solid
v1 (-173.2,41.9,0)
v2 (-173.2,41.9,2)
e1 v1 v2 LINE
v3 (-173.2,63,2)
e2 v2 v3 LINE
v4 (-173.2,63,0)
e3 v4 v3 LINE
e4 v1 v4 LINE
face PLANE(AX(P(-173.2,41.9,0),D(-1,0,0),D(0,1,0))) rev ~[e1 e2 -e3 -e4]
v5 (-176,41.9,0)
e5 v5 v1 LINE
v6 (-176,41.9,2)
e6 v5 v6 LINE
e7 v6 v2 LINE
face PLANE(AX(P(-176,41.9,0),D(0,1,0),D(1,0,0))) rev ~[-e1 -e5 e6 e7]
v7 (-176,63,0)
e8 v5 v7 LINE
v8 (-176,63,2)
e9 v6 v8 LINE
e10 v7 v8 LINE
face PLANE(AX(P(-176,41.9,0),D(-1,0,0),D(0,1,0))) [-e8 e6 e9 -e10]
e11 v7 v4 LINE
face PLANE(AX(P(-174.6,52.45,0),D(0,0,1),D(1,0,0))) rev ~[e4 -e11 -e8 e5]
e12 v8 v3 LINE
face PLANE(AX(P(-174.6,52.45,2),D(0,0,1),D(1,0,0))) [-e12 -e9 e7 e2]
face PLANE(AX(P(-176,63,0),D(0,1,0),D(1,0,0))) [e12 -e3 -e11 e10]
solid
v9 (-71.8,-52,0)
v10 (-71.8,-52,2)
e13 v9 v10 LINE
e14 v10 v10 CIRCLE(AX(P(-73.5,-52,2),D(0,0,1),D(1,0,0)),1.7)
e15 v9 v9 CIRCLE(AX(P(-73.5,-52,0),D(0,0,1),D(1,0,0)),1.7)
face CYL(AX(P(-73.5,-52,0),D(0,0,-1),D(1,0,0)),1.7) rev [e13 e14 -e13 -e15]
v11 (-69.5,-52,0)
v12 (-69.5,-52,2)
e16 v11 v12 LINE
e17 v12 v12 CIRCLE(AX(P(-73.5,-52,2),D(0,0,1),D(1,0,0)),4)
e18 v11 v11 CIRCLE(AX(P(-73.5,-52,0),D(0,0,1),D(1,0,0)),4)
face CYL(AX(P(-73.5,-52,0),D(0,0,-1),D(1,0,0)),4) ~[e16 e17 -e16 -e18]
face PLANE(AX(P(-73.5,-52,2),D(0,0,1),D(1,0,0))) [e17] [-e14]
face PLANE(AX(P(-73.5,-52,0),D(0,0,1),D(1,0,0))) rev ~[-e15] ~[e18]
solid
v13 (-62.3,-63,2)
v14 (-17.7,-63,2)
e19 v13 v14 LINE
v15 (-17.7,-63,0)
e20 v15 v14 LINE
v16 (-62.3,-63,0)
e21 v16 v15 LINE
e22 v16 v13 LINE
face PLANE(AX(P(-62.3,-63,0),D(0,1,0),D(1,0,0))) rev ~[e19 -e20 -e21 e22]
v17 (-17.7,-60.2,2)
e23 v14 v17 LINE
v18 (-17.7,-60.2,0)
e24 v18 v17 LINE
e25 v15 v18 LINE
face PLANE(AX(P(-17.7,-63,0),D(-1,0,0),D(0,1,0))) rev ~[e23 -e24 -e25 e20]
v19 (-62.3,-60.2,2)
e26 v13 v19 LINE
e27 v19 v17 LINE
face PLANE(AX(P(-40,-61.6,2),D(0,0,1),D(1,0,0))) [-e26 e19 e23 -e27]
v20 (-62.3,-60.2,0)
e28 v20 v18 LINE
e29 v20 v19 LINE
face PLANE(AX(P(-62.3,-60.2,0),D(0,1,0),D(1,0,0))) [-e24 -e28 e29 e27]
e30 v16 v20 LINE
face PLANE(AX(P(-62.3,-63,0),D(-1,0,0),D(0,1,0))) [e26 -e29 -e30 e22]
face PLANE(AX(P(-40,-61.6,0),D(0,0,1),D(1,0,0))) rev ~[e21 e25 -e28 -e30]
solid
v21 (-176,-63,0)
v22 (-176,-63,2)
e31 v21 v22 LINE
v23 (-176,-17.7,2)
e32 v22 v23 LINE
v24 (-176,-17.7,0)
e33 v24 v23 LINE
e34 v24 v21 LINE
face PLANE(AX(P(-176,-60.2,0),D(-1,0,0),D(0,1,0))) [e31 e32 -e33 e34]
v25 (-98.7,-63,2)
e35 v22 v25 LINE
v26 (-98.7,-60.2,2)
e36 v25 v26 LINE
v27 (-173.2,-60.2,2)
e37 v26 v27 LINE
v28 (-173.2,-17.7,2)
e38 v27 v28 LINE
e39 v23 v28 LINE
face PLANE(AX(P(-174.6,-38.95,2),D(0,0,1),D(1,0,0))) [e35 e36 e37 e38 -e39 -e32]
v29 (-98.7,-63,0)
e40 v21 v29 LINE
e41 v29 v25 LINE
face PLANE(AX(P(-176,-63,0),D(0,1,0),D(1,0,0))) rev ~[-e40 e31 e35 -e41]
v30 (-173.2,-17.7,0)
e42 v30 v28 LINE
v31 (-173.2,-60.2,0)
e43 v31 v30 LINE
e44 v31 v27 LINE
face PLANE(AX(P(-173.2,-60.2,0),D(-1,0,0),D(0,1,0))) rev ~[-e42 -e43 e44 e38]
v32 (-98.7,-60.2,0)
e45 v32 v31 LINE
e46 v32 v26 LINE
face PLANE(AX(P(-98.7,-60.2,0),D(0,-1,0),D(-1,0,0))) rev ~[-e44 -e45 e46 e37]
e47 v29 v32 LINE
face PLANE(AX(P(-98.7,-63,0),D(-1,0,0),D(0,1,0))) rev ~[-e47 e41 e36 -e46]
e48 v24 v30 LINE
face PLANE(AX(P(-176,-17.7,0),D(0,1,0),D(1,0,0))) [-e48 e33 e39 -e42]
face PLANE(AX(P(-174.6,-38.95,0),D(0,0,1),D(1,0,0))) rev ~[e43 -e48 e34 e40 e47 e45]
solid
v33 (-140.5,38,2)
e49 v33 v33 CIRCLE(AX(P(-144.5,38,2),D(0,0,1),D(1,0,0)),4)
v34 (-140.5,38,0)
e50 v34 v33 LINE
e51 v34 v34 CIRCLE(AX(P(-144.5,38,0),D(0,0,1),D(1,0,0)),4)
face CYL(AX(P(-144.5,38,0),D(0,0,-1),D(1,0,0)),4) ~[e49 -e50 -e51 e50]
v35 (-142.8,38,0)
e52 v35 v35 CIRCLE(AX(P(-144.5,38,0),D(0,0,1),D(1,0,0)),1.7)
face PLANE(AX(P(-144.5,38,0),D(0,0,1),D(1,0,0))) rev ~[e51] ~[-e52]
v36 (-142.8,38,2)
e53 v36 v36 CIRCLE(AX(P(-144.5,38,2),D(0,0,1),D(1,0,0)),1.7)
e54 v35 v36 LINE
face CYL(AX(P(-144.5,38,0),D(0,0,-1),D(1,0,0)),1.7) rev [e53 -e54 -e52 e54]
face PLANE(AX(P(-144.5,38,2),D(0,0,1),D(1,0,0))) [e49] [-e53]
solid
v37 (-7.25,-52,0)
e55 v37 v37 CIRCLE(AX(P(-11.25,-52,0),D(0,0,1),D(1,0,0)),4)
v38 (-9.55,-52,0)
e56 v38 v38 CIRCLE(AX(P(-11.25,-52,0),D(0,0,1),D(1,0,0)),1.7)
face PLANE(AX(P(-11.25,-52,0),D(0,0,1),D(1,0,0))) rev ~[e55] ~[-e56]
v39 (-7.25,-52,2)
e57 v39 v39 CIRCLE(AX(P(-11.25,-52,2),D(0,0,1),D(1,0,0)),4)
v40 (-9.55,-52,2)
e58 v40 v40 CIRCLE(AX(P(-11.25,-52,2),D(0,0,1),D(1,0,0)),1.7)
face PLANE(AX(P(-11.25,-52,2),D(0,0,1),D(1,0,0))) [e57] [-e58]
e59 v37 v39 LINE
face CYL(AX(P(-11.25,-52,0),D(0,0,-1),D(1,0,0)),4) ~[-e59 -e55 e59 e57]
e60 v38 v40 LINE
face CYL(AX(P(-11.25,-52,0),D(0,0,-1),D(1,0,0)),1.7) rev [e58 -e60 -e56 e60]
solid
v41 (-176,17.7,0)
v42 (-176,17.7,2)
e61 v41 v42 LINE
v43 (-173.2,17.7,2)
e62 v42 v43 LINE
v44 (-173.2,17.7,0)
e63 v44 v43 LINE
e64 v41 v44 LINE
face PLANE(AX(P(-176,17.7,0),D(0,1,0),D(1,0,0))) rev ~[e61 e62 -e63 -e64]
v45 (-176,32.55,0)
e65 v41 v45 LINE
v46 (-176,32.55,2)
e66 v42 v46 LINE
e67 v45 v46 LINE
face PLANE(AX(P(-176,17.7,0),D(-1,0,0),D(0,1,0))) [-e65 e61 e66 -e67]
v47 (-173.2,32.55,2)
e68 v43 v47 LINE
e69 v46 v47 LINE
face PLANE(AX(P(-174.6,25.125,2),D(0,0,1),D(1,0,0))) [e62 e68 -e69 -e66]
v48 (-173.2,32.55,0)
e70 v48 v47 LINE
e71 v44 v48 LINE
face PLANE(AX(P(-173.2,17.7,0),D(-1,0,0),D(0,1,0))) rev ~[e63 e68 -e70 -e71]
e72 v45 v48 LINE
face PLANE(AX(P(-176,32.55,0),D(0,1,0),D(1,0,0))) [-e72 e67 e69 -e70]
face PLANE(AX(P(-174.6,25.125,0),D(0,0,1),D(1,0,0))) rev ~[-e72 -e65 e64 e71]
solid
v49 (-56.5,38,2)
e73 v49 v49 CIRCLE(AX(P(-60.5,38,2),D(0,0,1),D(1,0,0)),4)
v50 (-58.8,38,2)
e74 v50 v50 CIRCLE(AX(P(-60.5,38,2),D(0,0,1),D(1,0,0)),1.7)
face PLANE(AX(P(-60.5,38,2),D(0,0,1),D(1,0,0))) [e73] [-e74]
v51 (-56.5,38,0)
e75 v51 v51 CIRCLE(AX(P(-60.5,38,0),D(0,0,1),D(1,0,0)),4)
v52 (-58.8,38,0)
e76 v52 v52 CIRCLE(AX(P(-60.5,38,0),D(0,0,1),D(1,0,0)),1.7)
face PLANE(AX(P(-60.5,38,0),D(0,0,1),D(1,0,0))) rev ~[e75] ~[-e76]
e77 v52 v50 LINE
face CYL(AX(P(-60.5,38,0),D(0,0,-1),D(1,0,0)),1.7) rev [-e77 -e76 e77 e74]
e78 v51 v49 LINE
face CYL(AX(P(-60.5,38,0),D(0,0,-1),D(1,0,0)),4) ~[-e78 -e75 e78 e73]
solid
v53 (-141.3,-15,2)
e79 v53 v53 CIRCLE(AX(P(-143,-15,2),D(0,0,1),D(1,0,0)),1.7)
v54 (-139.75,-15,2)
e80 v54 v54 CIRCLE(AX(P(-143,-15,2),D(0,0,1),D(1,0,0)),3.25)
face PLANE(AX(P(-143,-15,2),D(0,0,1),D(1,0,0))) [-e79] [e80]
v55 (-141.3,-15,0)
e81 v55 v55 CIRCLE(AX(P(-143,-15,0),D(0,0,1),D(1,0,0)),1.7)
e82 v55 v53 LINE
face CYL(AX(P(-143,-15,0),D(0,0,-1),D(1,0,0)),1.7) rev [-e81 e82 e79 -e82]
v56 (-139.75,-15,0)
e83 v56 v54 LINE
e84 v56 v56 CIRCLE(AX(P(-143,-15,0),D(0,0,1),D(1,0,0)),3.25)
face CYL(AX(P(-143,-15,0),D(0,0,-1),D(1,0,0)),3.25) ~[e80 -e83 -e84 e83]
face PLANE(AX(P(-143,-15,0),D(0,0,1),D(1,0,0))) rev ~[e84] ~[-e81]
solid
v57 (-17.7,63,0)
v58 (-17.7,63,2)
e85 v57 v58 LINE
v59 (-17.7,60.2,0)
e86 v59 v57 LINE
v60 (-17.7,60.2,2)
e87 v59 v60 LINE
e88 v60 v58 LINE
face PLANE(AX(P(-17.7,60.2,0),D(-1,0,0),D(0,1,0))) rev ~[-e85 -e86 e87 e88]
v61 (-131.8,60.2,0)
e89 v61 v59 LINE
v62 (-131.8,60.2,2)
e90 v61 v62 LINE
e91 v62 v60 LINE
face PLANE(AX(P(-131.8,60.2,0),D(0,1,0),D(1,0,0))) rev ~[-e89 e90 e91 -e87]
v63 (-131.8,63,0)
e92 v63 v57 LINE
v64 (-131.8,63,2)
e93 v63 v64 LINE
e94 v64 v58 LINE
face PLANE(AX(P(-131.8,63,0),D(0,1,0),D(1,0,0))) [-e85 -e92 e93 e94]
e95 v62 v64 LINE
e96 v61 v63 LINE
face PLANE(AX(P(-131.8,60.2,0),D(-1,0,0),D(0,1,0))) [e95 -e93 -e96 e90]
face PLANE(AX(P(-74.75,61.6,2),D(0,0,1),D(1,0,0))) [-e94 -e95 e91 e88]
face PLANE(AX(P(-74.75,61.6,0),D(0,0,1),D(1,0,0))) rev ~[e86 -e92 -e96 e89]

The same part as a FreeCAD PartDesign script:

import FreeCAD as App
import Part
import Sketcher
from FreeCAD import Vector


def add_polygon(sketch, points):
    """Adds a closed chain of lines whose ends are joined by coincident constraints."""
    first, n = sketch.GeometryCount, len(points)
    for a, b in zip(points, points[1:] + points[:1]):
        sketch.addGeometry(Part.LineSegment(App.Vector(*a, 0), App.Vector(*b, 0)), False)
    for i in range(n):
        sketch.addConstraint(Sketcher.Constraint("Coincident", first + i, 2, first + (i + 1) % n, 1))

doc = App.newDocument("Part")
body = doc.addObject("PartDesign::Body", "Body")
body.AllowCompound = True

# Sketch on XY plane
sketch1 = doc.addObject("Sketcher::SketchObject", "Sketch")
body.addObject(sketch1)
sketch1.AttachmentSupport = (doc.XY_Plane, [""])
sketch1.MapMode = "FlatFace"
add_polygon(sketch1, [(-131.8, 63), (-131.8, 60.2), (-17.7, 60.2), (-17.7, 63)])  # lines 0-3
sketch1.addGeometry(Part.Circle(Vector(-60.5, 38, 0), Vector(0, 0, 1), 4), False)  # 4
sketch1.addGeometry(Part.Circle(Vector(-60.5, 38, 0), Vector(0, 0, 1), 1.7), False)  # 5
sketch1.addGeometry(Part.Circle(Vector(-144.5, 38, 0), Vector(0, 0, 1), 4), False)  # 6
sketch1.addGeometry(Part.Circle(Vector(-144.5, 38, 0), Vector(0, 0, 1), 1.7), False)  # 7
add_polygon(sketch1, [(-176, 63), (-176, 41.9), (-173.2, 41.9), (-173.2, 63)])  # lines 8-11
add_polygon(sketch1, [(-176, 32.5), (-176, 17.7), (-173.2, 17.7), (-173.2, 32.5)])  # lines 12-15
add_polygon(sketch1, [(-176, -17.7), (-176, -63), (-98.7, -63), (-98.7, -60.2), (-173.2, -60.2), (-173.2, -17.7)])  # lines 16-21
sketch1.addGeometry(Part.Circle(Vector(-143, -15, 0), Vector(0, 0, 1), 3.2), False)  # 22
sketch1.addGeometry(Part.Circle(Vector(-143, -15, 0), Vector(0, 0, 1), 1.7), False)  # 23
add_polygon(sketch1, [(-62.3, -60.2), (-62.3, -63), (-17.7, -63), (-17.7, -60.2)])  # lines 24-27
sketch1.addGeometry(Part.Circle(Vector(-73.5, -52, 0), Vector(0, 0, 1), 4), False)  # 28
sketch1.addGeometry(Part.Circle(Vector(-73.5, -52, 0), Vector(0, 0, 1), 1.7), False)  # 29
sketch1.addGeometry(Part.Circle(Vector(-11.2, -52, 0), Vector(0, 0, 1), 4), False)  # 30
sketch1.addGeometry(Part.Circle(Vector(-11.2, -52, 0), Vector(0, 0, 1), 1.7), False)  # 31
sketch1.addConstraint([
    Sketcher.Constraint("Vertical", 0),
    Sketcher.Constraint("Horizontal", 1),
    Sketcher.Constraint("Vertical", 2),
    Sketcher.Constraint("Horizontal", 3),
    Sketcher.Constraint("Vertical", 8),
    Sketcher.Constraint("Horizontal", 9),
    Sketcher.Constraint("Vertical", 10),
    Sketcher.Constraint("Horizontal", 11),
    Sketcher.Constraint("Vertical", 12),
    Sketcher.Constraint("Horizontal", 13),
    Sketcher.Constraint("Vertical", 14),
    Sketcher.Constraint("Horizontal", 15),
    Sketcher.Constraint("Vertical", 16),
    Sketcher.Constraint("Horizontal", 17),
    Sketcher.Constraint("Vertical", 18),
    Sketcher.Constraint("Horizontal", 19),
    Sketcher.Constraint("Vertical", 20),
    Sketcher.Constraint("Horizontal", 21),
    Sketcher.Constraint("Vertical", 24),
    Sketcher.Constraint("Horizontal", 25),
    Sketcher.Constraint("Vertical", 26),
    Sketcher.Constraint("Horizontal", 27),
    Sketcher.Constraint("Coincident", 5, 3, 4, 3),
    Sketcher.Constraint("Coincident", 7, 3, 6, 3),
    Sketcher.Constraint("Coincident", 23, 3, 22, 3),
    Sketcher.Constraint("Coincident", 29, 3, 28, 3),
    Sketcher.Constraint("Coincident", 31, 3, 30, 3),
    Sketcher.Constraint("Equal", 4, 6),
    Sketcher.Constraint("Equal", 5, 7),
    Sketcher.Constraint("Equal", 7, 23),
    Sketcher.Constraint("Equal", 6, 28),
    Sketcher.Constraint("Equal", 23, 29),
    Sketcher.Constraint("Equal", 28, 30),
    Sketcher.Constraint("Equal", 29, 31),
    Sketcher.Constraint("Symmetric", 11, 2, 16, 2, -1),
    Sketcher.Constraint("Symmetric", 13, 2, 20, 2, -1),
    Sketcher.Constraint("Symmetric", 2, 2, 25, 2, -1),
    Sketcher.Constraint("Horizontal", 5, 3, 6, 3),
    Sketcher.Constraint("Horizontal", 29, 3, 30, 3),
    Sketcher.Constraint("Horizontal", 3, 2, 10, 2),
    Sketcher.Constraint("Horizontal", 19, 2, 26, 2),
    Sketcher.Constraint("Vertical", 11, 2, 12, 2),
    Sketcher.Constraint("Vertical", 10, 2, 13, 2),
    Sketcher.Constraint("Equal", 21, 0),
    Sketcher.Constraint("Equal", 2, 18),
    Sketcher.Constraint("Diameter", 4, 8.0),
    Sketcher.Constraint("Diameter", 5, 3.4),
    Sketcher.Constraint("Diameter", 22, 6.5),
    Sketcher.Constraint("DistanceX", 1, 1, 1, 2, 114.1),
    Sketcher.Constraint("DistanceX", 9, 1, 9, 2, 2.8),
    Sketcher.Constraint("DistanceX", 17, 1, 17, 2, 77.3),
    Sketcher.Constraint("DistanceX", 25, 1, 25, 2, 44.6),
    Sketcher.Constraint("DistanceY", 8, 2, 8, 1, 21.1),
    Sketcher.Constraint("DistanceY", 16, 2, 16, 1, 45.3),
    Sketcher.Constraint("DistanceY", -1, 1, 4, 3, 38.0),
    Sketcher.Constraint("DistanceX", 22, 3, -1, 1, 143.0),
    Sketcher.Constraint("DistanceY", 22, 3, -1, 1, 15.0),
    Sketcher.Constraint("DistanceY", 28, 3, -1, 1, 52.0),
    Sketcher.Constraint("DistanceY", -1, 1, 2, 2, 63.0),
    Sketcher.Constraint("DistanceX", 8, 2, -1, 1, 176.0),
    Sketcher.Constraint("DistanceX", 6, 3, 4, 3, 84.0),
    Sketcher.Constraint("DistanceX", 28, 3, 4, 3, 13.0),
    Sketcher.Constraint("DistanceY", 12, 2, 12, 1, 14.85),
    Sketcher.Constraint("DistanceX", 4, 3, -1, 1, 60.5),
    Sketcher.Constraint("DistanceX", 0, 2, -1, 1, 131.8),
    Sketcher.Constraint("DistanceX", 30, 3, -1, 1, 11.25),
])
pad1 = doc.addObject("PartDesign::Pad", "Pad")
body.addObject(pad1)
pad1.Profile = sketch1
pad1.Length = 2

doc.recompute()
